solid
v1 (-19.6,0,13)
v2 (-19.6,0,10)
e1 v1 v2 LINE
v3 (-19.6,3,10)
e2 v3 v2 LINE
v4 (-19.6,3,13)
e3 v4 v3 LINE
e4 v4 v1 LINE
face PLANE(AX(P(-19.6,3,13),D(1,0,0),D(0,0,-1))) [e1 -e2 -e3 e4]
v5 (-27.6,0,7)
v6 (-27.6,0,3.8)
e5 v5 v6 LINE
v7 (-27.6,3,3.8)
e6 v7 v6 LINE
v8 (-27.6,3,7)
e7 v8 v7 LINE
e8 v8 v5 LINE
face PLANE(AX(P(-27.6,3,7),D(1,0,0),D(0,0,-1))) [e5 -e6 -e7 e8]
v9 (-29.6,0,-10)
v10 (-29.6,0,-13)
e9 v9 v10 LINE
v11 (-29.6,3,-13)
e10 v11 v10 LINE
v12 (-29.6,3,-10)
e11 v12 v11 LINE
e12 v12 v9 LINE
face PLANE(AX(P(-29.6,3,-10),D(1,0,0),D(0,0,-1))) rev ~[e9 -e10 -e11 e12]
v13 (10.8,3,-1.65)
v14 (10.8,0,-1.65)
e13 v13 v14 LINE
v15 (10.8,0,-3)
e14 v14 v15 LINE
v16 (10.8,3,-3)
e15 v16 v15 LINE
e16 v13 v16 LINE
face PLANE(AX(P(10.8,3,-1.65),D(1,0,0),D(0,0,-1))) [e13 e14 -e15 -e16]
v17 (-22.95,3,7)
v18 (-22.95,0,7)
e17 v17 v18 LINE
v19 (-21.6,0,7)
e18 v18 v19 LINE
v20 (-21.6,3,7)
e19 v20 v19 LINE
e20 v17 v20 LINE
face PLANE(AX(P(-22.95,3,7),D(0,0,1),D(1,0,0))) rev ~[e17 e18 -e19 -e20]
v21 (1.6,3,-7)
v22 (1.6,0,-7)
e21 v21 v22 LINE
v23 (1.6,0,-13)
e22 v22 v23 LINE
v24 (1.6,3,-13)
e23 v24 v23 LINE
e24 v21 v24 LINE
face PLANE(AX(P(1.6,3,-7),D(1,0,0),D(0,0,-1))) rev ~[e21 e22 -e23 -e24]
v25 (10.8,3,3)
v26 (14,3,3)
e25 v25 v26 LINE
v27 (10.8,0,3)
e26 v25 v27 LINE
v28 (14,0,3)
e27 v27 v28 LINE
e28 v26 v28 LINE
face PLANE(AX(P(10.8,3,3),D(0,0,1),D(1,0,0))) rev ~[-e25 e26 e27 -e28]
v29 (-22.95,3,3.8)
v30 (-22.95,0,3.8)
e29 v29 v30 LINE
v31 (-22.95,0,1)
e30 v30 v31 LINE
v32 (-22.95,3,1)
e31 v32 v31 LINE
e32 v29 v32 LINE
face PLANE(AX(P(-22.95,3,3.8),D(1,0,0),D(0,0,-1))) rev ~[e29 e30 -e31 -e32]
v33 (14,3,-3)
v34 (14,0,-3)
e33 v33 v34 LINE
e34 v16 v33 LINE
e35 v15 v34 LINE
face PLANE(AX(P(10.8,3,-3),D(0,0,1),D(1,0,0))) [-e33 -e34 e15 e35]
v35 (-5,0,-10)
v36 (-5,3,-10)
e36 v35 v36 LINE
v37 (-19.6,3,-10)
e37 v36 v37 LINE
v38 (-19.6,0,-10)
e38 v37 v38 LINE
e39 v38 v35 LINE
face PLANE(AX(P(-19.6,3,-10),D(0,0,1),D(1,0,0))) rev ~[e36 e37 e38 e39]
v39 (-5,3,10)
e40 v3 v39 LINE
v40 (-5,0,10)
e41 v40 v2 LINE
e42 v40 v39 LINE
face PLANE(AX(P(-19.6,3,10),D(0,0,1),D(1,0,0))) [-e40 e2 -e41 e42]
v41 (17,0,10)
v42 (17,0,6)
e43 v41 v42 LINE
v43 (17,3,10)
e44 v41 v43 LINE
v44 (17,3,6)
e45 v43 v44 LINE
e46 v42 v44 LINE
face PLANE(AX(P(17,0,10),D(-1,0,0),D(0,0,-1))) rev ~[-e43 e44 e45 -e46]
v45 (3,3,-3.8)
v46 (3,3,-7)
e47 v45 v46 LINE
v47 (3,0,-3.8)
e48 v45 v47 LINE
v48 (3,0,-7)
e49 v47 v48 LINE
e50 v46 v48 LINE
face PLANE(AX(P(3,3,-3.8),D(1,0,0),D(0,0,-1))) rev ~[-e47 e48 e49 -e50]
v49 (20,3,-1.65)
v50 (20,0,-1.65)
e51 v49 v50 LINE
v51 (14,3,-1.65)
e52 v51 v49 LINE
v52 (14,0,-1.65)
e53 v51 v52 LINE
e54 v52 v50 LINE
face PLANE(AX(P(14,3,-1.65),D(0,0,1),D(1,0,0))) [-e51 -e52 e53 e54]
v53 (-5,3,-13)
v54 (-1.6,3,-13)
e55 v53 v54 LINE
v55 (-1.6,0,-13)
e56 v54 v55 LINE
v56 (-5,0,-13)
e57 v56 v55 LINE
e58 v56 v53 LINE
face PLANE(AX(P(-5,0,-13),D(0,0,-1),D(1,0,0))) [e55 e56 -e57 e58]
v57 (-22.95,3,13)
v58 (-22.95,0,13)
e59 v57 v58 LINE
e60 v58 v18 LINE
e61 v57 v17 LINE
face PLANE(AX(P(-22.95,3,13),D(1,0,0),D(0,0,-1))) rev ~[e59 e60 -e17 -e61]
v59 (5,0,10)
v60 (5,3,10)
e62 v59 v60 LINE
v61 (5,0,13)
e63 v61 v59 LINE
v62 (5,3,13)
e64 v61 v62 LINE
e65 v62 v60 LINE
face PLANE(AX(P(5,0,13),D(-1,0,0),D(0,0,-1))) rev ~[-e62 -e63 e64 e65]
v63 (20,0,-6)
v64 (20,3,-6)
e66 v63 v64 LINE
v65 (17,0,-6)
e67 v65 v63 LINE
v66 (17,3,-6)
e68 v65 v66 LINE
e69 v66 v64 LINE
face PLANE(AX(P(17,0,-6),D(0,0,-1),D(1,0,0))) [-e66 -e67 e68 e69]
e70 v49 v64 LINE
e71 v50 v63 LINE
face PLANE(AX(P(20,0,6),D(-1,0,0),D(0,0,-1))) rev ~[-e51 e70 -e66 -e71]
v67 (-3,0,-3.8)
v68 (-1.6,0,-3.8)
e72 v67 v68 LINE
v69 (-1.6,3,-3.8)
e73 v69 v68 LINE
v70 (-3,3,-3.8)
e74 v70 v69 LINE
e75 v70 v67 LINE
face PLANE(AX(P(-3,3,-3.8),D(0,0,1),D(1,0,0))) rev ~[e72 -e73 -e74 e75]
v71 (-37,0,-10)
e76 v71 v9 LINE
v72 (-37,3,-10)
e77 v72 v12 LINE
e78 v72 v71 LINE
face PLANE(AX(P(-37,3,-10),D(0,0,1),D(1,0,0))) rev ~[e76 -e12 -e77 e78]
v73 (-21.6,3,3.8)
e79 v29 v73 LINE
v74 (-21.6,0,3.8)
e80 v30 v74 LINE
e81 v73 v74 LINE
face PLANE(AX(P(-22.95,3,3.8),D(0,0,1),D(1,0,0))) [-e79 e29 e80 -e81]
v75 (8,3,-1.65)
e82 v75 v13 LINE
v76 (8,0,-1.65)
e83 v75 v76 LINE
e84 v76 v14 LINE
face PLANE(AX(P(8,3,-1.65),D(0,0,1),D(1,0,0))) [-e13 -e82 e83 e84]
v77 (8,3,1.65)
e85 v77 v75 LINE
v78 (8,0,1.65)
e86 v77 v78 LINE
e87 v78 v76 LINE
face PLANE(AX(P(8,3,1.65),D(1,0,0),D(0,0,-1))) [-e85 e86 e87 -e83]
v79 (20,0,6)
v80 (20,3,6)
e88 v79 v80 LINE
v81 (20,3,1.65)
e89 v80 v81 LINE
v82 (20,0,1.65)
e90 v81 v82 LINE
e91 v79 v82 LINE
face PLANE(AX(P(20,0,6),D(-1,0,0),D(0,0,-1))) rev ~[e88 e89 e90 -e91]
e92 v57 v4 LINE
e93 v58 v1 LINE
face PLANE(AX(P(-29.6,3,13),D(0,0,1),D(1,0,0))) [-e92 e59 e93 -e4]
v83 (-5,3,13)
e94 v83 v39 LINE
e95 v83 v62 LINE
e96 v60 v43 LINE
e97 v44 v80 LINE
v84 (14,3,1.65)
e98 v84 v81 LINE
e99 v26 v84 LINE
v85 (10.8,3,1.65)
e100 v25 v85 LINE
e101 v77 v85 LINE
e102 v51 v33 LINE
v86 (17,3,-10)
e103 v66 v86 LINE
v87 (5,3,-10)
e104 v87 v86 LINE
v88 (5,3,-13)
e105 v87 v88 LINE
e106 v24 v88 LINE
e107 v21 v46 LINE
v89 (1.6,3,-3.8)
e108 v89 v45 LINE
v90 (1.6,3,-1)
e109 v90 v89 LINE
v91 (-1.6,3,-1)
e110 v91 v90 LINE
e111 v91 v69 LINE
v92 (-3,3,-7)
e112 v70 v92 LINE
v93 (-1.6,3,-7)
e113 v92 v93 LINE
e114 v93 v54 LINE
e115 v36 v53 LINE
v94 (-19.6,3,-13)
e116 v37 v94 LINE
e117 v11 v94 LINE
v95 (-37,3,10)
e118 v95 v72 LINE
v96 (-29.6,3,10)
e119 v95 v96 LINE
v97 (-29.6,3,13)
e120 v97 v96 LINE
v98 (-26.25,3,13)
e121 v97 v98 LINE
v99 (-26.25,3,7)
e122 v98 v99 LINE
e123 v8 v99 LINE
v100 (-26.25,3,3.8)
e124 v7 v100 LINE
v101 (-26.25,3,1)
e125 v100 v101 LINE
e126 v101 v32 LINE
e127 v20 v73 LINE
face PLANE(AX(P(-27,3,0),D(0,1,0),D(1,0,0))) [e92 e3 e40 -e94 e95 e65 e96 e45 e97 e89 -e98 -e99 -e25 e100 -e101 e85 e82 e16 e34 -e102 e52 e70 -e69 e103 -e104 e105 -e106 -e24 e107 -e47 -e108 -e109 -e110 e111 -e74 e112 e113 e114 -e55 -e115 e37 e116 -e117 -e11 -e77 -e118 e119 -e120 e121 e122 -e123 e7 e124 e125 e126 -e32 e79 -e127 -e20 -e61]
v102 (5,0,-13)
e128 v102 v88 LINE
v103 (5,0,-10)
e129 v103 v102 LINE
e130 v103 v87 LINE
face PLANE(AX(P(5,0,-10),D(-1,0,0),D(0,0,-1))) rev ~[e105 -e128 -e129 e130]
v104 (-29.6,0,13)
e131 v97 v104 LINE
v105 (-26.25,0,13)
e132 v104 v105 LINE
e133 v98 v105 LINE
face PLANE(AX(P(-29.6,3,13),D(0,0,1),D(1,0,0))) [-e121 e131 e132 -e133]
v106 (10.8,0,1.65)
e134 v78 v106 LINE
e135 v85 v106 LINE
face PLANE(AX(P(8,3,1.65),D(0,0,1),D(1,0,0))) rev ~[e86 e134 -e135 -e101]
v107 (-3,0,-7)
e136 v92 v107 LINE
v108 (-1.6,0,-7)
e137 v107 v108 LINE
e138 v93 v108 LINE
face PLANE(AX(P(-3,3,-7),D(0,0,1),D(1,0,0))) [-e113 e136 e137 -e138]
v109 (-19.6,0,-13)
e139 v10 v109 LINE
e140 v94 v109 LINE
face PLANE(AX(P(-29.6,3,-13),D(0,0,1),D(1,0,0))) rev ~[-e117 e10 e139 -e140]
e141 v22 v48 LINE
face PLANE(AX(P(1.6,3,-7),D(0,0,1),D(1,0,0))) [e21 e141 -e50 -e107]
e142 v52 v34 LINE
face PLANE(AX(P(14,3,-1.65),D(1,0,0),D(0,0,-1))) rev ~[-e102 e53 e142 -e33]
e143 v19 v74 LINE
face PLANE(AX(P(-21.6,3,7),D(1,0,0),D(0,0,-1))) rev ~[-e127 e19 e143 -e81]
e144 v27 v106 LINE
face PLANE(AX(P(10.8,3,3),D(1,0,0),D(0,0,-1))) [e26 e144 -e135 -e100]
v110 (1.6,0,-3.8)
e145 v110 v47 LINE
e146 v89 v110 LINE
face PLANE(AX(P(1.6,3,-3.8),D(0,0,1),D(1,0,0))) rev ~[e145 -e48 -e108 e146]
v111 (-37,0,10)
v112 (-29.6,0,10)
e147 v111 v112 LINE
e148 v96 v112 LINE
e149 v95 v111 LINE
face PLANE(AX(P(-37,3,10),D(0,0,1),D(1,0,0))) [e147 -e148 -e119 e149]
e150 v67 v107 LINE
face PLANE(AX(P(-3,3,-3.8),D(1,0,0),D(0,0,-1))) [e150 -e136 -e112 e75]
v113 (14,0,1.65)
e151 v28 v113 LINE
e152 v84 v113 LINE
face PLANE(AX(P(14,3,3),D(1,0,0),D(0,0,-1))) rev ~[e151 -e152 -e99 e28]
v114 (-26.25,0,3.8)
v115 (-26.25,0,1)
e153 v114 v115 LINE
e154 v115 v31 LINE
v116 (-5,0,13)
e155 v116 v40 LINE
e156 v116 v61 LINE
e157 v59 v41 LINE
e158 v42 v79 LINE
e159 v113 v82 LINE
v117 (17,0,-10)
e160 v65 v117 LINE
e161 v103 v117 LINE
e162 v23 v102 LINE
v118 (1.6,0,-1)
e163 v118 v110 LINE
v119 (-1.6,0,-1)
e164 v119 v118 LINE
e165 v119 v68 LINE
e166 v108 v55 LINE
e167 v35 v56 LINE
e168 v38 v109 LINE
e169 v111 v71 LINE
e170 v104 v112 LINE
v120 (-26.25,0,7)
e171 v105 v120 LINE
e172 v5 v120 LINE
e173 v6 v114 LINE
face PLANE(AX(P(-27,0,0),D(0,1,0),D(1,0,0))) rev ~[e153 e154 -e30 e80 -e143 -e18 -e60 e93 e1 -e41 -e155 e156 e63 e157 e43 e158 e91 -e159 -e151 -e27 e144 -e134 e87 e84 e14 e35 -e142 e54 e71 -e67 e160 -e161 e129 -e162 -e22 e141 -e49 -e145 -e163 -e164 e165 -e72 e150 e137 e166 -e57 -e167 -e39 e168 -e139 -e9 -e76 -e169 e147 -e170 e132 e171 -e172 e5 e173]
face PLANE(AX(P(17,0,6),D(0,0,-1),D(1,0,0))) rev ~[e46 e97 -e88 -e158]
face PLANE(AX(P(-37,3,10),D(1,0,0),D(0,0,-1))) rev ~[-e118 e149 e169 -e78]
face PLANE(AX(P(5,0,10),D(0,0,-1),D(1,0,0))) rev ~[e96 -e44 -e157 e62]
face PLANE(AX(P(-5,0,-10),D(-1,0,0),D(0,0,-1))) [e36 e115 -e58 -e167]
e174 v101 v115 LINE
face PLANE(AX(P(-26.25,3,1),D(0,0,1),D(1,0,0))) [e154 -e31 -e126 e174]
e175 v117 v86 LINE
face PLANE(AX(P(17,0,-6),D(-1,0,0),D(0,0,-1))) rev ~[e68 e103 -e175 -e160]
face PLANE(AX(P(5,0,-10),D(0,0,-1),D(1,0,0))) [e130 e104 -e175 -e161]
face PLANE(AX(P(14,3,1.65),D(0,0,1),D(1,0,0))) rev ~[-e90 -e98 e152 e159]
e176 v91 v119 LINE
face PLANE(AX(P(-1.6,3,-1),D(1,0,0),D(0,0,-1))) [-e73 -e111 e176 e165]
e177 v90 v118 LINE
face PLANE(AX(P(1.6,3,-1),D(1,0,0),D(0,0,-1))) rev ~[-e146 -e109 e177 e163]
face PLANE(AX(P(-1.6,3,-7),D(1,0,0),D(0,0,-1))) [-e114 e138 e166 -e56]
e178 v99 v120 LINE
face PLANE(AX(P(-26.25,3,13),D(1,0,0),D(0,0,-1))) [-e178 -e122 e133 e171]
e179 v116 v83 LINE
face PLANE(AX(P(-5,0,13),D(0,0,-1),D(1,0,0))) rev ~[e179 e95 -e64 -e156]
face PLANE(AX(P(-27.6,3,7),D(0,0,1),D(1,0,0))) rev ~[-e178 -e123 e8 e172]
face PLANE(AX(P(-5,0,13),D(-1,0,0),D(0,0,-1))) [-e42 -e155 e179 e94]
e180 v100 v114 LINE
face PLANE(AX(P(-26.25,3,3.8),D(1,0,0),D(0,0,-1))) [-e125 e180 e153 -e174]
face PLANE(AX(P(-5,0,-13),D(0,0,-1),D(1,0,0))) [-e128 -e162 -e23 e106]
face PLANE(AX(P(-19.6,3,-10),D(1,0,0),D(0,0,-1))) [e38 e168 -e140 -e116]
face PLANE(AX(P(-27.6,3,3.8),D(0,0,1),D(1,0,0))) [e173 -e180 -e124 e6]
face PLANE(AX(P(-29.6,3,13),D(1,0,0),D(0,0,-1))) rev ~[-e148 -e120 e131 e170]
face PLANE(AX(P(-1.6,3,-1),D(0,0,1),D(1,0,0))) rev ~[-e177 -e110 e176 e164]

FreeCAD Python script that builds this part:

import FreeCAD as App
import Part
import Sketcher

V = App.Vector


def add_polygon(sketch, points):
    """Adds a closed chain of lines whose ends are joined by coincident constraints."""
    first, n = sketch.GeometryCount, len(points)
    for a, b in zip(points, points[1:] + points[:1]):
        sketch.addGeometry(Part.LineSegment(App.Vector(*a, 0), App.Vector(*b, 0)), False)
    for i in range(n):
        sketch.addConstraint(Sketcher.Constraint("Coincident", first + i, 2, first + (i + 1) % n, 1))

doc = App.newDocument("Part")
body = doc.addObject("PartDesign::Body", "Body")

# Sketch on XZ plane
sketch1 = body.newObject("Sketcher::SketchObject", "Sketch")
sketch1.AttachmentSupport = (doc.getObject("XZ_Plane"), [""])
sketch1.MapMode = "FlatFace"
add_polygon(sketch1, [(-17, -10), (-17, 10), (-5, 10), (-5, 13), (5, 13), (5, 10), (17, 10), (17, 6), (20, 6), (20, -6), (17, -6), (17, -10), (5, -10), (5, -13), (-5, -13), (-5, -10)])  # lines 0-15
sketch1.addConstraint([
    Sketcher.Constraint("Vertical", 0),
    Sketcher.Constraint("Horizontal", 1),
    Sketcher.Constraint("Vertical", 2),
    Sketcher.Constraint("Horizontal", 3),
    Sketcher.Constraint("Vertical", 4),
    Sketcher.Constraint("Horizontal", 5),
    Sketcher.Constraint("Vertical", 6),
    Sketcher.Constraint("Horizontal", 7),
    Sketcher.Constraint("Vertical", 8),
    Sketcher.Constraint("Horizontal", 9),
    Sketcher.Constraint("Vertical", 10),
    Sketcher.Constraint("Horizontal", 11),
    Sketcher.Constraint("Vertical", 12),
    Sketcher.Constraint("Horizontal", 13),
    Sketcher.Constraint("Vertical", 14),
    Sketcher.Constraint("Horizontal", 15),
    Sketcher.Constraint("Symmetric", 0, 2, 10, 2, -1, 1),
    Sketcher.Constraint("Symmetric", 2, 2, 12, 2, -1, 1),
    Sketcher.Constraint("Symmetric", 4, 2, 14, 2, -1, 1),
    Sketcher.Constraint("Symmetric", 1, 2, 4, 2, -2),
    Sketcher.Constraint("Symmetric", 6, 2, 9, 2, -1),
    Sketcher.Constraint("Equal", 9, 2),
    Sketcher.Constraint("Equal", 15, 8),
    Sketcher.Constraint("DistanceX", 1, 1, 1, 2, 12.0),
    Sketcher.Constraint("DistanceX", 3, 1, 3, 2, 10.0),
    Sketcher.Constraint("DistanceX", 7, 1, 7, 2, 3.0),
    Sketcher.Constraint("DistanceY", 0, 1, 0, 2, 20.0),
])
pad1 = body.newObject("PartDesign::Pad", "Pad")
pad1.Profile = sketch1
pad1.Length = 3
pad1.Reversed = True

# Sketch on XZ plane
sketch2 = body.newObject("Sketcher::SketchObject", "Sketch001")
sketch2.AttachmentSupport = (doc.getObject("XZ_Plane"), [""])
sketch2.MapMode = "FlatFace"
sketch2.AttachmentOffset = App.Placement(V(0, 0, -3), App.Rotation())
add_polygon(sketch2, [(8, -1.65), (8, 1.65), (10.8, 1.65), (10.8, 3), (14, 3), (14, 1.65), (20, 1.65), (20, -1.65), (14, -1.65), (14, -3), (10.8, -3), (10.8, -1.65)])  # lines 0-11
sketch2.addConstraint([
    Sketcher.Constraint("Vertical", 0),
    Sketcher.Constraint("Horizontal", 1),
    Sketcher.Constraint("Vertical", 2),
    Sketcher.Constraint("Horizontal", 3),
    Sketcher.Constraint("Vertical", 4),
    Sketcher.Constraint("Horizontal", 5),
    Sketcher.Constraint("Vertical", 6),
    Sketcher.Constraint("Horizontal", 7),
    Sketcher.Constraint("Vertical", 8),
    Sketcher.Constraint("Horizontal", 9),
    Sketcher.Constraint("Vertical", 10),
    Sketcher.Constraint("Horizontal", 11),
    Sketcher.Constraint("Symmetric", 4, 2, 7, 2, -1),
    Sketcher.Constraint("Symmetric", 2, 2, 9, 2, -1),
    Sketcher.Constraint("Horizontal", 1, 2, 4, 2),
    Sketcher.Constraint("Horizontal", 7, 2, 10, 2),
    Sketcher.Constraint("DistanceX", 5, 1, 5, 2, 6.0),
    Sketcher.Constraint("DistanceX", 1, 1, 1, 2, 2.8),
    Sketcher.Constraint("DistanceX", 3, 1, 3, 2, 3.2),
    Sketcher.Constraint("DistanceY", 0, 1, 0, 2, 3.3),
    Sketcher.Constraint("DistanceX", -1, 1, 0, 2, 8.0),
    Sketcher.Constraint("DistanceY", -1, 1, 2, 2, 3.0),
])
pocket1 = body.newObject("PartDesign::Pocket", "Pocket")
pocket1.Profile = sketch2
pocket1.Length = 3
pocket1.Reversed = True

# Sketch on XZ plane
sketch3 = body.newObject("Sketcher::SketchObject", "Sketch002")
sketch3.AttachmentSupport = (doc.getObject("XZ_Plane"), [""])
sketch3.MapMode = "FlatFace"
sketch3.AttachmentOffset = App.Placement(V(0, 0, -3), App.Rotation())
add_polygon(sketch3, [(-37, -10), (-37, 10), (-29.6, 10), (-29.6, 13), (-19.6, 13), (-19.6, 10), (-17, 10), (-17, -10), (-19.6, -10), (-19.6, -13), (-29.6, -13), (-29.6, -10)])  # lines 0-11
sketch3.addConstraint([
    Sketcher.Constraint("Vertical", 0),
    Sketcher.Constraint("Horizontal", 1),
    Sketcher.Constraint("Vertical", 2),
    Sketcher.Constraint("Horizontal", 3),
    Sketcher.Constraint("Vertical", 4),
    Sketcher.Constraint("Horizontal", 5),
    Sketcher.Constraint("Vertical", 6),
    Sketcher.Constraint("Horizontal", 7),
    Sketcher.Constraint("Vertical", 8),
    Sketcher.Constraint("Horizontal", 9),
    Sketcher.Constraint("Vertical", 10),
    Sketcher.Constraint("Horizontal", 11),
    Sketcher.Constraint("Symmetric", 4, 2, 7, 2, -1),
    Sketcher.Constraint("Symmetric", 2, 2, 9, 2, -1),
    Sketcher.Constraint("Horizontal", 1, 2, 4, 2),
    Sketcher.Constraint("Horizontal", 7, 2, 10, 2),
    Sketcher.Constraint("DistanceX", 3, 1, 3, 2, 10.0),
    Sketcher.Constraint("DistanceY", 0, 1, 0, 2, 20.0),
    Sketcher.Constraint("DistanceY", 2, 1, 2, 2, 3.0),
    Sketcher.Constraint("DistanceX", 1, 1, 1, 2, 7.4),
    Sketcher.Constraint("DistanceX", 5, 1, 5, 2, 2.6),
    Sketcher.Constraint("DistanceX", 0, 2, -1, 1, 37.0),
])
pad2 = body.newObject("PartDesign::Pad", "Pad001")
pad2.Profile = sketch3
pad2.Length = 3

# Sketch on XZ plane
sketch4 = body.newObject("Sketcher::SketchObject", "Sketch003")
sketch4.AttachmentSupport = (doc.getObject("XZ_Plane"), [""])
sketch4.MapMode = "FlatFace"
sketch4.AttachmentOffset = App.Placement(V(0, 0, -3), App.Rotation())
add_polygon(sketch4, [(-1.6, -3.8), (-1.6, -1), (1.6, -1), (1.6, -3.8), (3, -3.8), (3, -7), (1.6, -7), (1.6, -13), (-1.6, -13), (-1.6, -7), (-3, -7), (-3, -3.8)])  # lines 0-11
add_polygon(sketch4, [(-27.6, 3.8), (-27.6, 7), (-26.25, 7), (-26.25, 13), (-22.95, 13), (-22.95, 7), (-21.6, 7), (-21.6, 3.8), (-22.95, 3.8), (-22.95, 1), (-26.25, 1), (-26.25, 3.8)])  # lines 12-23
sketch4.addConstraint([
    Sketcher.Constraint("Vertical", 0),
    Sketcher.Constraint("Horizontal", 1),
    Sketcher.Constraint("Vertical", 2),
    Sketcher.Constraint("Horizontal", 3),
    Sketcher.Constraint("Vertical", 4),
    Sketcher.Constraint("Horizontal", 5),
    Sketcher.Constraint("Vertical", 6),
    Sketcher.Constraint("Horizontal", 7),
    Sketcher.Constraint("Vertical", 8),
    Sketcher.Constraint("Horizontal", 9),
    Sketcher.Constraint("Vertical", 10),
    Sketcher.Constraint("Horizontal", 11),
    Sketcher.Constraint("Vertical", 12),
    Sketcher.Constraint("Horizontal", 13),
    Sketcher.Constraint("Vertical", 14),
    Sketcher.Constraint("Horizontal", 15),
    Sketcher.Constraint("Vertical", 16),
    Sketcher.Constraint("Horizontal", 17),
    Sketcher.Constraint("Vertical", 18),
    Sketcher.Constraint("Horizontal", 19),
    Sketcher.Constraint("Vertical", 20),
    Sketcher.Constraint("Horizontal", 21),
    Sketcher.Constraint("Vertical", 22),
    Sketcher.Constraint("Horizontal", 23),
    Sketcher.Constraint("Symmetric", 5, 2, 8, 2, -2),
    Sketcher.Constraint("Symmetric", 3, 2, 10, 2, -2),
    Sketcher.Constraint("Horizontal", 13, 2, 16, 2),
    Sketcher.Constraint("Horizontal", 19, 2, 22, 2),
    Sketcher.Constraint("Vertical", 2, 2, 5, 2),
    Sketcher.Constraint("Vertical", 0, 2, 7, 2),
    Sketcher.Constraint("Vertical", 16, 2, 19, 2),
    Sketcher.Constraint("Vertical", 14, 2, 21, 2),
    Sketcher.Constraint("Equal", 13, 17),
    Sketcher.Constraint("Equal", 7, 4),
    Sketcher.Constraint("Equal", 10, 12),
    Sketcher.Constraint("Equal", 8, 14),
    Sketcher.Constraint("Equal", 2, 20),
    Sketcher.Constraint("DistanceY", 6, 2, 6, 1, 6.0),
    Sketcher.Constraint("DistanceX", 1, 1, 1, 2, 3.2),
    Sketcher.Constraint("DistanceX", 3, 1, 3, 2, 1.4),
    Sketcher.Constraint("DistanceX", 15, 1, 15, 2, 3.3),
    Sketcher.Constraint("DistanceY", 0, 1, 0, 2, 2.8),
    Sketcher.Constraint("DistanceY", 0, 2, -1, 1, 1.0),
    Sketcher.Constraint("DistanceY", -1, 1, 12, 2, 7.0),
    Sketcher.Constraint("DistanceX", 12, 2, 0, 2, 26.0),
    Sketcher.Constraint("DistanceX", 12, 2, 17, 2, 6.0),
])
pocket2 = body.newObject("PartDesign::Pocket", "Pocket001")
pocket2.Profile = sketch4
pocket2.Length = 3
pocket2.Reversed = True

doc.recompute()
